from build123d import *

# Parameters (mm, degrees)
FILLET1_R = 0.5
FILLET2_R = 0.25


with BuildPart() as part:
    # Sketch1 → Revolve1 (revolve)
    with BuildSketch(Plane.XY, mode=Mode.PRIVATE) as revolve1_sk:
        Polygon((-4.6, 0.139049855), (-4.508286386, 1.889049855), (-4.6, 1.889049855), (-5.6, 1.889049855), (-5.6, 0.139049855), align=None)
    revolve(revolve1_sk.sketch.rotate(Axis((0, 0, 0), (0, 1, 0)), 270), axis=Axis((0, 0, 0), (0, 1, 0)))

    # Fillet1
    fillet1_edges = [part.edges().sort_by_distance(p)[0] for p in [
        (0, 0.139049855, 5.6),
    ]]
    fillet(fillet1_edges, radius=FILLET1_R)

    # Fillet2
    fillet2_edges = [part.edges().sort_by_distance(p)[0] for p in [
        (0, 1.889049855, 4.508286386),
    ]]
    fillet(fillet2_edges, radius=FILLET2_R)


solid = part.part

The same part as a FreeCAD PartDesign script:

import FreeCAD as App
import Part
import Sketcher
Q = App.Units.Quantity


def edges_at(feature, points):
    """Names of the edges that pass closest to the given points."""
    edges = feature.Shape.Edges
    near = lambda p: min(range(len(edges)), key=lambda i: edges[i].distToShape(Part.Vertex(*p))[0])
    return sorted({f"Edge{near(p) + 1}" for p in points})


def add_polygon(sketch, points):
    """Adds a closed chain of lines whose ends are joined by coincident constraints."""
    first, n = sketch.GeometryCount, len(points)
    for a, b in zip(points, points[1:] + points[:1]):
        sketch.addGeometry(Part.LineSegment(App.Vector(*a, 0), App.Vector(*b, 0)), False)
    for i in range(n):
        sketch.addConstraint(Sketcher.Constraint("Coincident", first + i, 2, first + (i + 1) % n, 1))

doc = App.newDocument("Part")
body = doc.addObject("PartDesign::Body", "Body")

# Sketch on XY plane
sketch1 = body.newObject("Sketcher::SketchObject", "Sketch")
sketch1.AttachmentSupport = (doc.getObject("XY_Plane"), [""])
sketch1.MapMode = "FlatFace"
add_polygon(sketch1, [(-4.6, 0.13905), (-4.508286, 1.88905), (-5.6, 1.88905), (-5.6, 0.13905)])  # lines 0-3
sketch1.addConstraint(Sketcher.Constraint("Horizontal", 1))
sketch1.addConstraint(Sketcher.Constraint("Vertical", 2))
sketch1.addConstraint(Sketcher.Constraint("Horizontal", 3))
sketch1.addConstraint(Sketcher.Constraint("DistanceX", 3, 1, 3, 2, Q("1 mm")))
sketch1.addConstraint(Sketcher.Constraint("Angle", 0, Q("87 deg")))
sketch1.addConstraint(Sketcher.Constraint("DistanceY", 2, 2, 2, 1, Q("1.75 mm")))
sketch1.addConstraint(Sketcher.Constraint("DistanceX", 1, 2, -1, 1, Q("5.6 mm")))
sketch1.addConstraint(Sketcher.Constraint("DistanceY", -1, 1, 0, 2, Q("1.88905 mm")))
revolution = body.newObject("PartDesign::Revolution", "Revolution")
revolution.Profile = sketch1
revolution.ReferenceAxis = (sketch1, ["V_Axis"])
revolution.Angle = 360
doc.recompute()

fillet = body.newObject("PartDesign::Fillet", "Fillet")
fillet.Base = (revolution, edges_at(revolution, [(0, 0.139, 5.6)]))
fillet.Radius = 0.5
doc.recompute()

fillet2 = body.newObject("PartDesign::Fillet", "Fillet001")
fillet2.Base = (fillet, edges_at(fillet, [(0, 1.889, 4.508)]))
fillet2.Radius = 0.25

doc.recompute()
